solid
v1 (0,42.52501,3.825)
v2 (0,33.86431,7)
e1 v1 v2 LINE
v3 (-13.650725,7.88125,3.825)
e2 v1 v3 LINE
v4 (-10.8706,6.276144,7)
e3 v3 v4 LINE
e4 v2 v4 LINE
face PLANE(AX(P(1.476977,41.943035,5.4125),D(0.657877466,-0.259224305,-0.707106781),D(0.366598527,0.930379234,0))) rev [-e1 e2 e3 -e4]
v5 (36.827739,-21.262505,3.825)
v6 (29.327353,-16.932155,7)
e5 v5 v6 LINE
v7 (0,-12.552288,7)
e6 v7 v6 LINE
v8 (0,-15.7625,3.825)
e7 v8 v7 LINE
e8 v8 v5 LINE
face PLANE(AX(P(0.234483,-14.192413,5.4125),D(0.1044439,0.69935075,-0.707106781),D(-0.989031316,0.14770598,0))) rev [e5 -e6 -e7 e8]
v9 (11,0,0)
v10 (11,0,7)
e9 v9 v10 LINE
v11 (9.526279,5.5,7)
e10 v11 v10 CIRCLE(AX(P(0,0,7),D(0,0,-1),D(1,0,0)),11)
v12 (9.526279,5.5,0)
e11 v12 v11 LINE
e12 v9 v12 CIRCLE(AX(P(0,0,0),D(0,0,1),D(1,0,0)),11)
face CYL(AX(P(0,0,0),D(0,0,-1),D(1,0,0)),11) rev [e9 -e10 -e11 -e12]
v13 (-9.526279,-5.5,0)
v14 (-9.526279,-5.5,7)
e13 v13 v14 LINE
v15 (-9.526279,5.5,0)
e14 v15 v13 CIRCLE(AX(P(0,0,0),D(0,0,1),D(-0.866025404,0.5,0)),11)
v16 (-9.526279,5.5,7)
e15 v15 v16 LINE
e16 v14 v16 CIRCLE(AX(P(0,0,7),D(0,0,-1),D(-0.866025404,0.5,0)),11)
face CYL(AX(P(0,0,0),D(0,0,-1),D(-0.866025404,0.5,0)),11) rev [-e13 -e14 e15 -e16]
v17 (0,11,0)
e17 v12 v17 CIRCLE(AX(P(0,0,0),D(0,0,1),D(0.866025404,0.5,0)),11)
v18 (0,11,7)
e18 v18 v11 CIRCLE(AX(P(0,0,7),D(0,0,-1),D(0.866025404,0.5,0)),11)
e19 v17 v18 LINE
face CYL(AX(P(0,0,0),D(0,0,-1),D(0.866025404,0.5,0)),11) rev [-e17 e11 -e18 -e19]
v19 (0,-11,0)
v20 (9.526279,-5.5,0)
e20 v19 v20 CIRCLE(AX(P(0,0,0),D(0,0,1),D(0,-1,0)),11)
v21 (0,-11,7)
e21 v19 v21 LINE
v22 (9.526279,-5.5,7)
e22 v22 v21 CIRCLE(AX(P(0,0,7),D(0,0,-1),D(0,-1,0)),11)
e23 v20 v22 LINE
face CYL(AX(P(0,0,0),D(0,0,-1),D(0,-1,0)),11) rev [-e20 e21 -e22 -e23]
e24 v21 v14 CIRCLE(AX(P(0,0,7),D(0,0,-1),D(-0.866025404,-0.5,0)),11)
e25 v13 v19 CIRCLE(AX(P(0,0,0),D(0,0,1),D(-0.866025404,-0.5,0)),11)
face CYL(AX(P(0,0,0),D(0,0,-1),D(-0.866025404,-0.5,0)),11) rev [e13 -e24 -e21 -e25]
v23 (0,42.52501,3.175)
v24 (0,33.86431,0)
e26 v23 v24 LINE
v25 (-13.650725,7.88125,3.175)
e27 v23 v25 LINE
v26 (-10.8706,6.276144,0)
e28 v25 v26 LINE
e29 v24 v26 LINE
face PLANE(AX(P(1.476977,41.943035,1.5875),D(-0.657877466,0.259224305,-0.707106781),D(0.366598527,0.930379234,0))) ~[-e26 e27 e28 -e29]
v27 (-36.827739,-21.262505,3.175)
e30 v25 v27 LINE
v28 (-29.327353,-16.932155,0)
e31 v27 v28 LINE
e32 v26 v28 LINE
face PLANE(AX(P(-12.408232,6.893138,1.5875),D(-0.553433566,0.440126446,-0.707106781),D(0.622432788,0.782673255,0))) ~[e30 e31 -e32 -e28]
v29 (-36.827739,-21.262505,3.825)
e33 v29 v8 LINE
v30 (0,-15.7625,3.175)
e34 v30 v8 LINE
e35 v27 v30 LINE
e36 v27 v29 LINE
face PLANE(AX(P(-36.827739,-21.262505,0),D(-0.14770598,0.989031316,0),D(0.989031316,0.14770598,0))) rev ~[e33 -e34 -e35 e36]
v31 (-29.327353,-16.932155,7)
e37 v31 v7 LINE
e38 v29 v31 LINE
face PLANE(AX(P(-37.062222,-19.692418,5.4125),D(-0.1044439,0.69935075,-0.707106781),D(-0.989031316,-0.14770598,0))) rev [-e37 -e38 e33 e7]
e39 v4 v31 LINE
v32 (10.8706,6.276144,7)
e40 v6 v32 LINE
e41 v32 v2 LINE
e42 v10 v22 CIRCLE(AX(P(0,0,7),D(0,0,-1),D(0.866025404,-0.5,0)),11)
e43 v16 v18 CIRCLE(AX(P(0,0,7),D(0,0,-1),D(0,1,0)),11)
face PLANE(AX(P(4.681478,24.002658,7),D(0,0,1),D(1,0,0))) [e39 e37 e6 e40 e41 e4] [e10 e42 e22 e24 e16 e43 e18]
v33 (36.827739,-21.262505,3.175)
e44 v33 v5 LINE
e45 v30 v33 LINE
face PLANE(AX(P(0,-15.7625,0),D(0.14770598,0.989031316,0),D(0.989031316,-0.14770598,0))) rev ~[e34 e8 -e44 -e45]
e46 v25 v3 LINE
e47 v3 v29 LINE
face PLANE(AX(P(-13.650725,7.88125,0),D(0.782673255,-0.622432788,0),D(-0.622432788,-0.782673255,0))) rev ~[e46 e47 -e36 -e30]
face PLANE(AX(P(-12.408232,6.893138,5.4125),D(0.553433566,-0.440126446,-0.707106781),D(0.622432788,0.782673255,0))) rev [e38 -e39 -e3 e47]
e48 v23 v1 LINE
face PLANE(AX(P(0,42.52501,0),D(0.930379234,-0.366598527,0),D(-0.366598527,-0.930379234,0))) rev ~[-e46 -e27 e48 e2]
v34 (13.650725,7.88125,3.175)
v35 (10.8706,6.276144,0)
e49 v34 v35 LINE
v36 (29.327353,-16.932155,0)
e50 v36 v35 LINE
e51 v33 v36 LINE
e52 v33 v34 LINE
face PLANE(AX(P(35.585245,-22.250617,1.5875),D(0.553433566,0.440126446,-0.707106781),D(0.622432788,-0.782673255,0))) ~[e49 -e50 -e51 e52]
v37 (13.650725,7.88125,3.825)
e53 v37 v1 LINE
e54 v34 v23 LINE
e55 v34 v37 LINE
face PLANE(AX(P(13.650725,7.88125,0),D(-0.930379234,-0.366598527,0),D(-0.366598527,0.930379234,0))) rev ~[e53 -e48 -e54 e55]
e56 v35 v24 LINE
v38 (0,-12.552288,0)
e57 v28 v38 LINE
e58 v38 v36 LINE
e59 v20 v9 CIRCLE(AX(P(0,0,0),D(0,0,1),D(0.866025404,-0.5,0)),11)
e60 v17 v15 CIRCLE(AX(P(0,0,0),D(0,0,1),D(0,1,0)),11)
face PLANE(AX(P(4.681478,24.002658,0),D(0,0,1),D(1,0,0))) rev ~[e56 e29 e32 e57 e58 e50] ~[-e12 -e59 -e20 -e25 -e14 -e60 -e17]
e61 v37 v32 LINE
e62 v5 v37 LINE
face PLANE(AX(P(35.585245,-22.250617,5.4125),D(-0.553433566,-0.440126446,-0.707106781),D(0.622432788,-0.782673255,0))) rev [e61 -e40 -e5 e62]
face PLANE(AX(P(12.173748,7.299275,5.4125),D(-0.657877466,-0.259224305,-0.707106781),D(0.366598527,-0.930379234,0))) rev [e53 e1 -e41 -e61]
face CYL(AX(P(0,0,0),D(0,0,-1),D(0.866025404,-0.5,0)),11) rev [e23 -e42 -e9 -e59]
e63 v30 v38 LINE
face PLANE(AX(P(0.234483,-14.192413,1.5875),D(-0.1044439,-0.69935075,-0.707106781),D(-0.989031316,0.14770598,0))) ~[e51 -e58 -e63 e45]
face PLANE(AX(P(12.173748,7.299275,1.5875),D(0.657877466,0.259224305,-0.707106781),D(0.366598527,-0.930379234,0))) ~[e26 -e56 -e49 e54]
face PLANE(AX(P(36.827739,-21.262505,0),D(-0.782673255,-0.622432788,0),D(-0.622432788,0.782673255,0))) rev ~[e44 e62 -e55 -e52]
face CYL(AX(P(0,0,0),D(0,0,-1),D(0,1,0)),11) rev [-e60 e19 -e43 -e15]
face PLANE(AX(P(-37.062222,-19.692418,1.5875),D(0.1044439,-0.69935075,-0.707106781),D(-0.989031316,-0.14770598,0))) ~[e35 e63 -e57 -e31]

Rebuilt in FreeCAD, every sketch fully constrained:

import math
import FreeCAD as App
import Part
import Sketcher
from FreeCAD import Vector


def edges_at(feature, points):
    """Names of the edges that pass closest to the given points."""
    edges = feature.Shape.Edges
    near = lambda p: min(range(len(edges)), key=lambda i: edges[i].distToShape(Part.Vertex(*p))[0])
    return sorted({f"Edge{near(p) + 1}" for p in points})

doc = App.newDocument("Part")
body = doc.addObject("PartDesign::Body", "Body")

# Sketch on XY plane
sketch1 = body.newObject("Sketcher::SketchObject", "Sketch")
sketch1.AttachmentSupport = (doc.getObject("XY_Plane"), [""])
sketch1.MapMode = "FlatFace"
sketch1.addGeometry(Part.LineSegment(Vector(0, 43, 0), Vector(-14, 8, 0)), False)
sketch1.addGeometry(Part.LineSegment(Vector(-14, 8, 0), Vector(-37, -21, 0)), False)
sketch1.addGeometry(Part.LineSegment(Vector(-37, -21, 0), Vector(0, -16, 0)), False)
sketch1.addGeometry(Part.LineSegment(Vector(0, -16, 0), Vector(37, -21, 0)), False)
sketch1.addGeometry(Part.LineSegment(Vector(37, -21, 0), Vector(14, 8, 0)), False)
sketch1.addGeometry(Part.LineSegment(Vector(14, 8, 0), Vector(0, 43, 0)), False)
sketch1.addConstraint(Sketcher.Constraint("Coincident", 0, 2, 1, 1))
sketch1.addConstraint(Sketcher.Constraint("Coincident", 1, 2, 2, 1))
sketch1.addConstraint(Sketcher.Constraint("Coincident", 2, 2, 3, 1))
sketch1.addConstraint(Sketcher.Constraint("Coincident", 3, 2, 4, 1))
sketch1.addConstraint(Sketcher.Constraint("Coincident", 4, 2, 5, 1))
sketch1.addConstraint(Sketcher.Constraint("Coincident", 5, 2, 0, 1))
sketch1.addConstraint(Sketcher.Constraint("Symmetric", 1, 2, 3, 2, -2))
sketch1.addConstraint(Sketcher.Constraint("Symmetric", 0, 2, 4, 2, -2))
sketch1.addConstraint(Sketcher.Constraint("PointOnObject", 2, 2, -2))
sketch1.addConstraint(Sketcher.Constraint("PointOnObject", 5, 2, -2))
sketch1.addConstraint(Sketcher.Constraint("Equal", 0, 1))
sketch1.addConstraint(Sketcher.Constraint("Equal", 1, 2))
sketch1.addConstraint(Sketcher.Constraint("DistanceY", 2, 2, -1, 1, 15.7625))
sketch1.addConstraint(Sketcher.Constraint("Distance", 0, 37.236171))
sketch1.addConstraint(Sketcher.Constraint("DistanceY", -1, 1, 0, 2, 7.88125))
sketch1.addConstraint(Sketcher.Constraint("DistanceX", 1, 2, -1, 1, 36.827739))
pad1 = body.newObject("PartDesign::Pad", "Pad")
pad1.Profile = sketch1
pad1.Length = 7
doc.recompute()

chamfer = body.newObject("PartDesign::Chamfer", "Chamfer")
chamfer.Base = (pad1, edges_at(pad1, [
    (-18.414, -18.513, 7),
    (-6.825, 25.203, 7),
    (-25.239, -6.691, 7),
    (18.414, -18.513, 7),
    (25.239, -6.691, 7),
    (6.825, 25.203, 7),
    (-6.825, 25.203, 0),
    (-25.239, -6.691, 0),
    (-18.414, -18.513, 0),
    (18.414, -18.513, 0),
    (25.239, -6.691, 0),
    (6.825, 25.203, 0),
]))
chamfer.Size = 3.175

# Sketch on XY plane
sketch2 = body.newObject("Sketcher::SketchObject", "Sketch001")
sketch2.AttachmentSupport = (doc.getObject("XY_Plane"), [""])
sketch2.MapMode = "FlatFace"
sketch2.addGeometry(Part.ArcOfCircle(Part.Circle(Vector(0, 0, 0), Vector(0, 0, 1), 11), math.radians(-90), math.radians(-30)), False)
sketch2.addGeometry(Part.ArcOfCircle(Part.Circle(Vector(0, 0, 0), Vector(0, 0, 1), 11), math.radians(-30), math.radians(0)), False)
sketch2.addGeometry(Part.ArcOfCircle(Part.Circle(Vector(0, 0, 0), Vector(0, 0, 1), 11), math.radians(0), math.radians(30)), False)
sketch2.addGeometry(Part.ArcOfCircle(Part.Circle(Vector(0, 0, 0), Vector(0, 0, 1), 11), math.radians(30), math.radians(90)), False)
sketch2.addGeometry(Part.ArcOfCircle(Part.Circle(Vector(0, 0, 0), Vector(0, 0, 1), 11), math.radians(90), math.radians(150)), False)
sketch2.addGeometry(Part.ArcOfCircle(Part.Circle(Vector(0, 0, 0), Vector(0, 0, 1), 11), math.radians(150), math.radians(210)), False)
sketch2.addGeometry(Part.ArcOfCircle(Part.Circle(Vector(0, 0, 0), Vector(0, 0, 1), 11), math.radians(-150), math.radians(-90)), False)
sketch2.addConstraint(Sketcher.Constraint("Tangent", 0, 2, 1, 1))
sketch2.addConstraint(Sketcher.Constraint("Tangent", 1, 2, 2, 1))
sketch2.addConstraint(Sketcher.Constraint("Tangent", 2, 2, 3, 1))
sketch2.addConstraint(Sketcher.Constraint("Tangent", 3, 2, 4, 1))
sketch2.addConstraint(Sketcher.Constraint("Tangent", 4, 2, 5, 1))
sketch2.addConstraint(Sketcher.Constraint("Tangent", 5, 2, 6, 1))
sketch2.addConstraint(Sketcher.Constraint("Tangent", 6, 2, 0, 1))
sketch2.addConstraint(Sketcher.Constraint("Coincident", 0, 3, -1, 1))
sketch2.addConstraint(Sketcher.Constraint("Coincident", 2, 3, -1, 1))
sketch2.addConstraint(Sketcher.Constraint("Coincident", 4, 3, -1, 1))
sketch2.addConstraint(Sketcher.Constraint("PointOnObject", 1, 2, -1))
sketch2.addConstraint(Sketcher.Constraint("PointOnObject", 3, 2, -2))
sketch2.addConstraint(Sketcher.Constraint("PointOnObject", 6, 2, -2))
sketch2.addConstraint(Sketcher.Constraint("Horizontal", 2, 2, 4, 2))
sketch2.addConstraint(Sketcher.Constraint("Horizontal", 0, 2, 5, 2))
sketch2.addConstraint(Sketcher.Constraint("Vertical", 0, 2, 2, 2))
sketch2.addConstraint(Sketcher.Constraint("Radius", 0, 11.0))
sketch2.addConstraint(Sketcher.Constraint("DistanceY", 0, 2, 2, 2, 11.0))
pocket1 = body.newObject("PartDesign::Pocket", "Pocket")
pocket1.Profile = sketch2
pocket1.Type = "ThroughAll"
pocket1.Reversed = True

doc.recompute()
